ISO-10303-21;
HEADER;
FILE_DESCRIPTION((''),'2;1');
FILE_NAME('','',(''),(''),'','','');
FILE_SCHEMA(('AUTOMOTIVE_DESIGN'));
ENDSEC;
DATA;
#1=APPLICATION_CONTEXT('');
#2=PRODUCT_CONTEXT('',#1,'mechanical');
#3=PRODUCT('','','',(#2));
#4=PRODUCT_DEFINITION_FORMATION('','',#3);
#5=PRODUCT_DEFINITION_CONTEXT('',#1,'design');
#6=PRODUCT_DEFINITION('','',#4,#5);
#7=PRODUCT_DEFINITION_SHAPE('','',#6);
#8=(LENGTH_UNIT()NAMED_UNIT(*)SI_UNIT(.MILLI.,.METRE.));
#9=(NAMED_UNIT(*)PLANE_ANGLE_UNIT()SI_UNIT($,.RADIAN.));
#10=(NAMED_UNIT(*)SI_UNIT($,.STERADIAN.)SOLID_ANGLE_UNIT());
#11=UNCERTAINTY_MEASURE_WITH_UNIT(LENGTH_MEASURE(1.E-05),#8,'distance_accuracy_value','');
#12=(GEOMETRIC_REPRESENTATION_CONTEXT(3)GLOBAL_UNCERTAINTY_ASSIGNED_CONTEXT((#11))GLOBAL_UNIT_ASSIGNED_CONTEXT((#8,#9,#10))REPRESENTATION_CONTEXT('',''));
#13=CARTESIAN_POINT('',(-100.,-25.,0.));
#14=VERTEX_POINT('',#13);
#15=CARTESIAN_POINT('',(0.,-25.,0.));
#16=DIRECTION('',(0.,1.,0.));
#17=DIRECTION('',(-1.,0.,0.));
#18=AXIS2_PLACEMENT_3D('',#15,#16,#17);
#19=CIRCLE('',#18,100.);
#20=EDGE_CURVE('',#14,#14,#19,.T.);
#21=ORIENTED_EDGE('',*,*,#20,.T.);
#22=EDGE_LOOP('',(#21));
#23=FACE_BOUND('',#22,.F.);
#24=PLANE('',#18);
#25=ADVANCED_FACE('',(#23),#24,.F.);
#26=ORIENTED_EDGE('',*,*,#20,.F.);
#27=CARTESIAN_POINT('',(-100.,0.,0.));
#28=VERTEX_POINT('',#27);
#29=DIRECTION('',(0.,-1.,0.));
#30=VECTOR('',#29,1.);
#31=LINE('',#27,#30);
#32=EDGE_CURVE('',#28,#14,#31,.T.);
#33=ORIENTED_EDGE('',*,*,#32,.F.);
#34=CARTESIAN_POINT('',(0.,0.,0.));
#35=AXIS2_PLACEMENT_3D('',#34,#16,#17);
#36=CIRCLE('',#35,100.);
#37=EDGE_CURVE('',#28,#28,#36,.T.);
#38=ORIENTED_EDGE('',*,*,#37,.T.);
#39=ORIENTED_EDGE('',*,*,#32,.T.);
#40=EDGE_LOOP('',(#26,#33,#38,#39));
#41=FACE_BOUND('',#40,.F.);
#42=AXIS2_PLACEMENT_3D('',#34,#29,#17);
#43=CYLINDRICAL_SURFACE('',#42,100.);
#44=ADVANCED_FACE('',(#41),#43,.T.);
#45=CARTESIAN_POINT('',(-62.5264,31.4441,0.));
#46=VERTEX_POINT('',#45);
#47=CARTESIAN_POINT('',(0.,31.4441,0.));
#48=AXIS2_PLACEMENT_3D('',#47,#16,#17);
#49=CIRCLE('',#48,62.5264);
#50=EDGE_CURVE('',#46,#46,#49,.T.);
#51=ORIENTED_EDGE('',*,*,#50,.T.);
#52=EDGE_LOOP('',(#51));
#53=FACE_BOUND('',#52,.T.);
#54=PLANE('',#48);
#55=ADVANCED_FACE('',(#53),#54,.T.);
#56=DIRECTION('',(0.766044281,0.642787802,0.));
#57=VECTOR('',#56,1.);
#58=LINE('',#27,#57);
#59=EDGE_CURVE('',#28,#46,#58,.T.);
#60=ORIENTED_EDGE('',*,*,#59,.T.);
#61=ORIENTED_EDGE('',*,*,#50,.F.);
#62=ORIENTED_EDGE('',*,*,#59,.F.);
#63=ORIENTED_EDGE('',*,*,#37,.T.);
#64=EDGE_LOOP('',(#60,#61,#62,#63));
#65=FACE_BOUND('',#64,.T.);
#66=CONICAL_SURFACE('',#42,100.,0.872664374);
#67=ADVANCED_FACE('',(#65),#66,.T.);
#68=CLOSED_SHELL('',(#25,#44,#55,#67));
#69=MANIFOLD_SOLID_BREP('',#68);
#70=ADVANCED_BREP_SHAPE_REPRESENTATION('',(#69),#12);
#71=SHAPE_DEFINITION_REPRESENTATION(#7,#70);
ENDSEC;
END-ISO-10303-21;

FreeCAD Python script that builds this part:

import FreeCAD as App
import Part
import Sketcher
Q = App.Units.Quantity

doc = App.newDocument("Part")
body = doc.addObject("PartDesign::Body", "Body")

# Sketch on XY plane
sketch1 = doc.addObject("Sketcher::SketchObject", "Sketch")
body.addObject(sketch1)
sketch1.AttachmentSupport = (doc.XY_Plane, [""])
sketch1.MapMode = "FlatFace"
sketch1.addGeometry([
    Part.LineSegment(App.Vector(-100, 0, 0), App.Vector(-100, -25, 0)),  # 0
    Part.LineSegment(App.Vector(-100, -25, 0), App.Vector(0, -25, 0)),  # 1
    Part.LineSegment(App.Vector(0, -25, 0), App.Vector(0, 31.4441, 0)),  # 2
    Part.LineSegment(App.Vector(0, 31.4441, 0), App.Vector(-62.5264, 31.4441, 0)),  # 3
    Part.LineSegment(App.Vector(-62.5264, 31.4441, 0), App.Vector(-100, 0, 0)),  # 4
], False)
sketch1.addConstraint([
    Sketcher.Constraint("Coincident", 0, 2, 1, 1),
    Sketcher.Constraint("Coincident", 1, 2, 2, 1),
    Sketcher.Constraint("Coincident", 2, 2, 3, 1),
    Sketcher.Constraint("Coincident", 3, 2, 4, 1),
    Sketcher.Constraint("Coincident", 4, 2, 0, 1),
    Sketcher.Constraint("Vertical", 0),
    Sketcher.Constraint("Horizontal", 1),
    Sketcher.Constraint("Vertical", 2),
    Sketcher.Constraint("Horizontal", 3),
    Sketcher.Constraint("PointOnObject", 1, 2, -2),
    Sketcher.Constraint("PointOnObject", 4, 2, -1),
    Sketcher.Constraint("DistanceX", 1, 1, 1, 2, 100.0),
    Sketcher.Constraint("DistanceY", 0, 2, 0, 1, 25.0),
    Sketcher.Constraint("Angle", 4, Q("-140 deg")),
    Sketcher.Constraint("DistanceX", 3, 2, 3, 1, 62.5264),
])
revolution = doc.addObject("PartDesign::Revolution", "Revolution")
body.addObject(revolution)
revolution.Profile = sketch1
revolution.ReferenceAxis = (sketch1, ["V_Axis"])
revolution.Angle = 360

doc.recompute()
